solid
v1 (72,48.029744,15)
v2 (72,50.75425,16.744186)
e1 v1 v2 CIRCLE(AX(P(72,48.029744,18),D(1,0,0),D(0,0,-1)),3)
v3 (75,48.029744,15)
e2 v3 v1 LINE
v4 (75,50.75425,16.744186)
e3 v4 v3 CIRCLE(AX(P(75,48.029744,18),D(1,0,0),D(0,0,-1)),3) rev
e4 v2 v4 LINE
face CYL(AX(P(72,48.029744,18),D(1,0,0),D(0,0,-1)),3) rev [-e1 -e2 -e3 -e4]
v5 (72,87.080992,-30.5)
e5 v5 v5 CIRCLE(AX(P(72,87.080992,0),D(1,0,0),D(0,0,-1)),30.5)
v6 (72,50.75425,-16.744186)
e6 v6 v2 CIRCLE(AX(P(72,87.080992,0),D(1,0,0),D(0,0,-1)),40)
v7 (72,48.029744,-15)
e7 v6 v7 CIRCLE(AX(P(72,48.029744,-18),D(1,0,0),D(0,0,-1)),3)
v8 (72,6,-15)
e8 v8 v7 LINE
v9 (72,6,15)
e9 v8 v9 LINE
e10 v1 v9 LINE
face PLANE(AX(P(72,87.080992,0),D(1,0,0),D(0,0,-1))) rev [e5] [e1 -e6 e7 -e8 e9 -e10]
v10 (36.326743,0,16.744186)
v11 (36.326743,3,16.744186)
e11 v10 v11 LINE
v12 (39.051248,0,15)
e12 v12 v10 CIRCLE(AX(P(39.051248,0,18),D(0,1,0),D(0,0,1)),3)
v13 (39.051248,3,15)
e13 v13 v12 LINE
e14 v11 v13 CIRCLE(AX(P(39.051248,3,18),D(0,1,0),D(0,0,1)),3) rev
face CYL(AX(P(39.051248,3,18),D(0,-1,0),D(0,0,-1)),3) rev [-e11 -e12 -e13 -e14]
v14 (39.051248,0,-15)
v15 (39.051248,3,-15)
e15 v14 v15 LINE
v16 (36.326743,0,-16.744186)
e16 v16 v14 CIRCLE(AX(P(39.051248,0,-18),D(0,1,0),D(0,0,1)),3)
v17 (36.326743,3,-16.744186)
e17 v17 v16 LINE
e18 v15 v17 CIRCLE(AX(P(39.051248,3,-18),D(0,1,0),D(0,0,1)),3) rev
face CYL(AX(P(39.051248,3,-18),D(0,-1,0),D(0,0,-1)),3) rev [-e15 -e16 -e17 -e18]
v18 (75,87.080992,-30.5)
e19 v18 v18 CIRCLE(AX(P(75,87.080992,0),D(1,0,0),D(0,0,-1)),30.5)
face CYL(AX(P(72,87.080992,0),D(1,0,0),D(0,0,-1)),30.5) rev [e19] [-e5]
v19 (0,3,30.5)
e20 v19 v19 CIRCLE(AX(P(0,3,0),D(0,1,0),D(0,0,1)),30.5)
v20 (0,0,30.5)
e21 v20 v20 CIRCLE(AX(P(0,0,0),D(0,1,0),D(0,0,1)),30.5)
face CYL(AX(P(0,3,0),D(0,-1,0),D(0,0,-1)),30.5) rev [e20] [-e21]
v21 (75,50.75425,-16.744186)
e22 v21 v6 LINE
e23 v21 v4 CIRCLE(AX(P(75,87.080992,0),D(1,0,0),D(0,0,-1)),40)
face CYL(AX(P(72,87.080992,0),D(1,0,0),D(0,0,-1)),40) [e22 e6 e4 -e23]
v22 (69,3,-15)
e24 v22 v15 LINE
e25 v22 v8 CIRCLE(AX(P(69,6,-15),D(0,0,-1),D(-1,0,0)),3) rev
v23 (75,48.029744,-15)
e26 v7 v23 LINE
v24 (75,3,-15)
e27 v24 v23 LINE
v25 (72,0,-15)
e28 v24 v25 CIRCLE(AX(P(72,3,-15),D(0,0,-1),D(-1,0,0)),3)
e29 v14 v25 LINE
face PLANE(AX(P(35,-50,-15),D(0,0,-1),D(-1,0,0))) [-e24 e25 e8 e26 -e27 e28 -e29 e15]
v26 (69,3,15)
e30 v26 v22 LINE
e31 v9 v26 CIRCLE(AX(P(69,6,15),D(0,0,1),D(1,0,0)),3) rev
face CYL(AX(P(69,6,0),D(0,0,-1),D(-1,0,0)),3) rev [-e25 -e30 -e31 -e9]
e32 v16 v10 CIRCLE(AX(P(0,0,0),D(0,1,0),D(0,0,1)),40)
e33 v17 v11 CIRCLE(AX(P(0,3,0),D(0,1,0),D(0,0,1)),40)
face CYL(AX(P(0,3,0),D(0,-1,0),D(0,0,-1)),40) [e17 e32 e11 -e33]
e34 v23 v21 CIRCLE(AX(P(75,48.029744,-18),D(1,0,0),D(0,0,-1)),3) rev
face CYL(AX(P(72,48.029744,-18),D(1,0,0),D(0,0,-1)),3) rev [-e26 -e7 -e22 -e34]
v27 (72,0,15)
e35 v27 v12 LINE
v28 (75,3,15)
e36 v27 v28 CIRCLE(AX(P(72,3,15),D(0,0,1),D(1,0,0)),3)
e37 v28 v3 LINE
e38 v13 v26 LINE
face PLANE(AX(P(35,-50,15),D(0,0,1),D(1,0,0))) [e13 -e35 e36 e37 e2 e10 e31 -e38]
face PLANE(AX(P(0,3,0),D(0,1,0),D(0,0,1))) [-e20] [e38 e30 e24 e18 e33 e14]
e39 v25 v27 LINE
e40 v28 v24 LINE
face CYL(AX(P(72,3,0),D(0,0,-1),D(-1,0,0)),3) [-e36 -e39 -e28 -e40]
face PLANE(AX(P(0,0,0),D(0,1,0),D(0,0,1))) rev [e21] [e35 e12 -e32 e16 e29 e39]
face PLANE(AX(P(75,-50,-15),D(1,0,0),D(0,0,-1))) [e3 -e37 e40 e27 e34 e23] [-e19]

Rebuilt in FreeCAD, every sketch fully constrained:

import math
import FreeCAD as App
import Part
import Sketcher
from FreeCAD import Vector
Q = App.Units.Quantity


def edges_at(feature, points):
    """Names of the edges that pass closest to the given points."""
    edges = feature.Shape.Edges
    near = lambda p: min(range(len(edges)), key=lambda i: edges[i].distToShape(Part.Vertex(*p))[0])
    return sorted({f"Edge{near(p) + 1}" for p in points})


def add_polygon(sketch, points):
    """Adds a closed chain of lines whose ends are joined by coincident constraints."""
    first, n = sketch.GeometryCount, len(points)
    for a, b in zip(points, points[1:] + points[:1]):
        sketch.addGeometry(Part.LineSegment(App.Vector(*a, 0), App.Vector(*b, 0)), False)
    for i in range(n):
        sketch.addConstraint(Sketcher.Constraint("Coincident", first + i, 2, first + (i + 1) % n, 1))

doc = App.newDocument("Part")
params = doc.addObject("Spreadsheet::Sheet", "Params")
for row, (alias, value) in enumerate([
    ("sketch1_diameter", "80 mm"),
    ("sketch1_diameter2", "61 mm"),
    ("pad1_length", "3 mm"),
    ("sketch2_width", "40 mm"),
    ("sketch2_height", "30 mm"),
    ("pad2_length", "3 mm"),
    ("sketch3_diameter", "61 mm"),
    ("sketch3_radius", "40 mm"),
    ("sketch3_width", "50 mm"),
    ("sketch3_height", "30 mm"),
    ("pad3_length", "3 mm"),
    ("fillet_radius", "3 mm"),
    ("fillet2_radius", "3 mm"),
], start=1):
    params.set(f"A{row}", alias)
    params.set(f"B{row}", "=" + value)
    params.setAlias(f"B{row}", alias)

body = doc.addObject("PartDesign::Body", "Body")

sketch1 = body.newObject("Sketcher::SketchObject", "Sketch")
sketch1.AttachmentSupport = (doc.getObject("XZ_Plane"), [""])
sketch1.MapMode = "FlatFace"
sketch1.addGeometry(Part.Circle(Vector(0, 0, 0), Vector(0, 0, 1), 40), False)
sketch1.addGeometry(Part.Circle(Vector(0, 0, 0), Vector(0, 0, 1), 30), False)
sketch1.addConstraint(Sketcher.Constraint("Coincident", 0, 3, -1, 1))
sketch1.addConstraint(Sketcher.Constraint("Coincident", 1, 3, -1, 1))
sketch1.addConstraint(Sketcher.Constraint("Diameter", 0, Q("80 mm")))
sketch1.addConstraint(Sketcher.Constraint("Diameter", 1, Q("61 mm")))
sketch1.setExpression("Constraints[2]", "Params.sketch1_diameter")
sketch1.setExpression("Constraints[3]", "Params.sketch1_diameter2")
pad1 = body.newObject("PartDesign::Pad", "Pad")
pad1.Profile = sketch1
pad1.setExpression("Length", "Params.pad1_length")
pad1.Reversed = True

sketch2 = body.newObject("Sketcher::SketchObject", "Sketch001")
sketch2.AttachmentSupport = (doc.getObject("XZ_Plane"), [""])
sketch2.MapMode = "FlatFace"
sketch2.AttachmentOffset = App.Placement(Vector(0, 0, -3), App.Rotation())
add_polygon(sketch2, [(35, -15), (35, 15), (75, 15), (75, -15)])
sketch2.addConstraint(Sketcher.Constraint("Vertical", 0))
sketch2.addConstraint(Sketcher.Constraint("Horizontal", 1))
sketch2.addConstraint(Sketcher.Constraint("Vertical", 2))
sketch2.addConstraint(Sketcher.Constraint("Horizontal", 3))
sketch2.addConstraint(Sketcher.Constraint("DistanceX", 1, 1, 1, 2, Q("40 mm")))
sketch2.addConstraint(Sketcher.Constraint("DistanceY", 0, 1, 0, 2, Q("30 mm")))
sketch2.addConstraint(Sketcher.Constraint("DistanceX", -1, 1, 0, 2, Q("35 mm")))
sketch2.addConstraint(Sketcher.Constraint("DistanceY", -1, 1, 0, 2, Q("15 mm")))
sketch2.setExpression("Constraints[8]", "Params.sketch2_width")
sketch2.setExpression("Constraints[9]", "Params.sketch2_height")
pad2 = body.newObject("PartDesign::Pad", "Pad001")
pad2.Profile = sketch2
pad2.setExpression("Length", "Params.pad2_length")

sketch3 = body.newObject("Sketcher::SketchObject", "Sketch002")
sketch3.AttachmentSupport = (doc.getObject("YZ_Plane"), [""])
sketch3.MapMode = "FlatFace"
sketch3.AttachmentOffset = App.Placement(Vector(0, 0, 75), App.Rotation())
sketch3.addGeometry(Part.LineSegment(Vector(0, 15, 0), Vector(0, -15, 0)), False)
sketch3.addGeometry(Part.LineSegment(Vector(0, -15, 0), Vector(50, -15, 0)), False)
sketch3.addGeometry(Part.ArcOfCircle(Part.Circle(Vector(87, 0, 0), Vector(0, 0, 1), 40), math.radians(-158), math.radians(158)), False)
sketch3.addGeometry(Part.LineSegment(Vector(50, 15, 0), Vector(0, 15, 0)), False)
sketch3.addGeometry(Part.Circle(Vector(87, 0, 0), Vector(0, 0, 1), 30), False)
sketch3.addConstraint(Sketcher.Constraint("Coincident", 0, 2, 1, 1))
sketch3.addConstraint(Sketcher.Constraint("Coincident", 1, 2, 2, 1))
sketch3.addConstraint(Sketcher.Constraint("Coincident", 2, 2, 3, 1))
sketch3.addConstraint(Sketcher.Constraint("Coincident", 3, 2, 0, 1))
sketch3.addConstraint(Sketcher.Constraint("Vertical", 0))
sketch3.addConstraint(Sketcher.Constraint("Horizontal", 1))
sketch3.addConstraint(Sketcher.Constraint("Horizontal", 3))
sketch3.addConstraint(Sketcher.Constraint("Coincident", 4, 3, 2, 3))
sketch3.addConstraint(Sketcher.Constraint("Symmetric", 0, 2, 3, 2, -1, 1))
sketch3.addConstraint(Sketcher.Constraint("PointOnObject", 2, 3, -1))
sketch3.addConstraint(Sketcher.Constraint("Diameter", 4, Q("61 mm")))
sketch3.addConstraint(Sketcher.Constraint("Radius", 2, Q("40 mm")))
sketch3.addConstraint(Sketcher.Constraint("DistanceX", 1, 1, 1, 2, Q("50 mm")))
sketch3.addConstraint(Sketcher.Constraint("DistanceY", 0, 2, 0, 1, Q("30 mm")))
sketch3.setExpression("Constraints[10]", "Params.sketch3_diameter")
sketch3.setExpression("Constraints[11]", "Params.sketch3_radius")
sketch3.setExpression("Constraints[12]", "Params.sketch3_width")
sketch3.setExpression("Constraints[13]", "Params.sketch3_height")
pad3 = body.newObject("PartDesign::Pad", "Pad002")
pad3.Profile = sketch3
pad3.setExpression("Length", "Params.pad3_length")
pad3.Reversed = True
doc.recompute()

fillet = body.newObject("PartDesign::Fillet", "Fillet")
fillet.Base = (pad3, edges_at(pad3, [
    (37.081, 1.5, 15),
    (37.081, 1.5, -15),
    (73.5, 50, 15),
    (73.5, 50, -15),
]))
fillet.setExpression("Radius", "Params.fillet_radius")
doc.recompute()

fillet2 = body.newObject("PartDesign::Fillet", "Fillet001")
fillet2.Base = (fillet, edges_at(fillet, [(75, 0, 0), (72, 3, 0)]))
fillet2.setExpression("Radius", "Params.fillet2_radius")

doc.recompute()
